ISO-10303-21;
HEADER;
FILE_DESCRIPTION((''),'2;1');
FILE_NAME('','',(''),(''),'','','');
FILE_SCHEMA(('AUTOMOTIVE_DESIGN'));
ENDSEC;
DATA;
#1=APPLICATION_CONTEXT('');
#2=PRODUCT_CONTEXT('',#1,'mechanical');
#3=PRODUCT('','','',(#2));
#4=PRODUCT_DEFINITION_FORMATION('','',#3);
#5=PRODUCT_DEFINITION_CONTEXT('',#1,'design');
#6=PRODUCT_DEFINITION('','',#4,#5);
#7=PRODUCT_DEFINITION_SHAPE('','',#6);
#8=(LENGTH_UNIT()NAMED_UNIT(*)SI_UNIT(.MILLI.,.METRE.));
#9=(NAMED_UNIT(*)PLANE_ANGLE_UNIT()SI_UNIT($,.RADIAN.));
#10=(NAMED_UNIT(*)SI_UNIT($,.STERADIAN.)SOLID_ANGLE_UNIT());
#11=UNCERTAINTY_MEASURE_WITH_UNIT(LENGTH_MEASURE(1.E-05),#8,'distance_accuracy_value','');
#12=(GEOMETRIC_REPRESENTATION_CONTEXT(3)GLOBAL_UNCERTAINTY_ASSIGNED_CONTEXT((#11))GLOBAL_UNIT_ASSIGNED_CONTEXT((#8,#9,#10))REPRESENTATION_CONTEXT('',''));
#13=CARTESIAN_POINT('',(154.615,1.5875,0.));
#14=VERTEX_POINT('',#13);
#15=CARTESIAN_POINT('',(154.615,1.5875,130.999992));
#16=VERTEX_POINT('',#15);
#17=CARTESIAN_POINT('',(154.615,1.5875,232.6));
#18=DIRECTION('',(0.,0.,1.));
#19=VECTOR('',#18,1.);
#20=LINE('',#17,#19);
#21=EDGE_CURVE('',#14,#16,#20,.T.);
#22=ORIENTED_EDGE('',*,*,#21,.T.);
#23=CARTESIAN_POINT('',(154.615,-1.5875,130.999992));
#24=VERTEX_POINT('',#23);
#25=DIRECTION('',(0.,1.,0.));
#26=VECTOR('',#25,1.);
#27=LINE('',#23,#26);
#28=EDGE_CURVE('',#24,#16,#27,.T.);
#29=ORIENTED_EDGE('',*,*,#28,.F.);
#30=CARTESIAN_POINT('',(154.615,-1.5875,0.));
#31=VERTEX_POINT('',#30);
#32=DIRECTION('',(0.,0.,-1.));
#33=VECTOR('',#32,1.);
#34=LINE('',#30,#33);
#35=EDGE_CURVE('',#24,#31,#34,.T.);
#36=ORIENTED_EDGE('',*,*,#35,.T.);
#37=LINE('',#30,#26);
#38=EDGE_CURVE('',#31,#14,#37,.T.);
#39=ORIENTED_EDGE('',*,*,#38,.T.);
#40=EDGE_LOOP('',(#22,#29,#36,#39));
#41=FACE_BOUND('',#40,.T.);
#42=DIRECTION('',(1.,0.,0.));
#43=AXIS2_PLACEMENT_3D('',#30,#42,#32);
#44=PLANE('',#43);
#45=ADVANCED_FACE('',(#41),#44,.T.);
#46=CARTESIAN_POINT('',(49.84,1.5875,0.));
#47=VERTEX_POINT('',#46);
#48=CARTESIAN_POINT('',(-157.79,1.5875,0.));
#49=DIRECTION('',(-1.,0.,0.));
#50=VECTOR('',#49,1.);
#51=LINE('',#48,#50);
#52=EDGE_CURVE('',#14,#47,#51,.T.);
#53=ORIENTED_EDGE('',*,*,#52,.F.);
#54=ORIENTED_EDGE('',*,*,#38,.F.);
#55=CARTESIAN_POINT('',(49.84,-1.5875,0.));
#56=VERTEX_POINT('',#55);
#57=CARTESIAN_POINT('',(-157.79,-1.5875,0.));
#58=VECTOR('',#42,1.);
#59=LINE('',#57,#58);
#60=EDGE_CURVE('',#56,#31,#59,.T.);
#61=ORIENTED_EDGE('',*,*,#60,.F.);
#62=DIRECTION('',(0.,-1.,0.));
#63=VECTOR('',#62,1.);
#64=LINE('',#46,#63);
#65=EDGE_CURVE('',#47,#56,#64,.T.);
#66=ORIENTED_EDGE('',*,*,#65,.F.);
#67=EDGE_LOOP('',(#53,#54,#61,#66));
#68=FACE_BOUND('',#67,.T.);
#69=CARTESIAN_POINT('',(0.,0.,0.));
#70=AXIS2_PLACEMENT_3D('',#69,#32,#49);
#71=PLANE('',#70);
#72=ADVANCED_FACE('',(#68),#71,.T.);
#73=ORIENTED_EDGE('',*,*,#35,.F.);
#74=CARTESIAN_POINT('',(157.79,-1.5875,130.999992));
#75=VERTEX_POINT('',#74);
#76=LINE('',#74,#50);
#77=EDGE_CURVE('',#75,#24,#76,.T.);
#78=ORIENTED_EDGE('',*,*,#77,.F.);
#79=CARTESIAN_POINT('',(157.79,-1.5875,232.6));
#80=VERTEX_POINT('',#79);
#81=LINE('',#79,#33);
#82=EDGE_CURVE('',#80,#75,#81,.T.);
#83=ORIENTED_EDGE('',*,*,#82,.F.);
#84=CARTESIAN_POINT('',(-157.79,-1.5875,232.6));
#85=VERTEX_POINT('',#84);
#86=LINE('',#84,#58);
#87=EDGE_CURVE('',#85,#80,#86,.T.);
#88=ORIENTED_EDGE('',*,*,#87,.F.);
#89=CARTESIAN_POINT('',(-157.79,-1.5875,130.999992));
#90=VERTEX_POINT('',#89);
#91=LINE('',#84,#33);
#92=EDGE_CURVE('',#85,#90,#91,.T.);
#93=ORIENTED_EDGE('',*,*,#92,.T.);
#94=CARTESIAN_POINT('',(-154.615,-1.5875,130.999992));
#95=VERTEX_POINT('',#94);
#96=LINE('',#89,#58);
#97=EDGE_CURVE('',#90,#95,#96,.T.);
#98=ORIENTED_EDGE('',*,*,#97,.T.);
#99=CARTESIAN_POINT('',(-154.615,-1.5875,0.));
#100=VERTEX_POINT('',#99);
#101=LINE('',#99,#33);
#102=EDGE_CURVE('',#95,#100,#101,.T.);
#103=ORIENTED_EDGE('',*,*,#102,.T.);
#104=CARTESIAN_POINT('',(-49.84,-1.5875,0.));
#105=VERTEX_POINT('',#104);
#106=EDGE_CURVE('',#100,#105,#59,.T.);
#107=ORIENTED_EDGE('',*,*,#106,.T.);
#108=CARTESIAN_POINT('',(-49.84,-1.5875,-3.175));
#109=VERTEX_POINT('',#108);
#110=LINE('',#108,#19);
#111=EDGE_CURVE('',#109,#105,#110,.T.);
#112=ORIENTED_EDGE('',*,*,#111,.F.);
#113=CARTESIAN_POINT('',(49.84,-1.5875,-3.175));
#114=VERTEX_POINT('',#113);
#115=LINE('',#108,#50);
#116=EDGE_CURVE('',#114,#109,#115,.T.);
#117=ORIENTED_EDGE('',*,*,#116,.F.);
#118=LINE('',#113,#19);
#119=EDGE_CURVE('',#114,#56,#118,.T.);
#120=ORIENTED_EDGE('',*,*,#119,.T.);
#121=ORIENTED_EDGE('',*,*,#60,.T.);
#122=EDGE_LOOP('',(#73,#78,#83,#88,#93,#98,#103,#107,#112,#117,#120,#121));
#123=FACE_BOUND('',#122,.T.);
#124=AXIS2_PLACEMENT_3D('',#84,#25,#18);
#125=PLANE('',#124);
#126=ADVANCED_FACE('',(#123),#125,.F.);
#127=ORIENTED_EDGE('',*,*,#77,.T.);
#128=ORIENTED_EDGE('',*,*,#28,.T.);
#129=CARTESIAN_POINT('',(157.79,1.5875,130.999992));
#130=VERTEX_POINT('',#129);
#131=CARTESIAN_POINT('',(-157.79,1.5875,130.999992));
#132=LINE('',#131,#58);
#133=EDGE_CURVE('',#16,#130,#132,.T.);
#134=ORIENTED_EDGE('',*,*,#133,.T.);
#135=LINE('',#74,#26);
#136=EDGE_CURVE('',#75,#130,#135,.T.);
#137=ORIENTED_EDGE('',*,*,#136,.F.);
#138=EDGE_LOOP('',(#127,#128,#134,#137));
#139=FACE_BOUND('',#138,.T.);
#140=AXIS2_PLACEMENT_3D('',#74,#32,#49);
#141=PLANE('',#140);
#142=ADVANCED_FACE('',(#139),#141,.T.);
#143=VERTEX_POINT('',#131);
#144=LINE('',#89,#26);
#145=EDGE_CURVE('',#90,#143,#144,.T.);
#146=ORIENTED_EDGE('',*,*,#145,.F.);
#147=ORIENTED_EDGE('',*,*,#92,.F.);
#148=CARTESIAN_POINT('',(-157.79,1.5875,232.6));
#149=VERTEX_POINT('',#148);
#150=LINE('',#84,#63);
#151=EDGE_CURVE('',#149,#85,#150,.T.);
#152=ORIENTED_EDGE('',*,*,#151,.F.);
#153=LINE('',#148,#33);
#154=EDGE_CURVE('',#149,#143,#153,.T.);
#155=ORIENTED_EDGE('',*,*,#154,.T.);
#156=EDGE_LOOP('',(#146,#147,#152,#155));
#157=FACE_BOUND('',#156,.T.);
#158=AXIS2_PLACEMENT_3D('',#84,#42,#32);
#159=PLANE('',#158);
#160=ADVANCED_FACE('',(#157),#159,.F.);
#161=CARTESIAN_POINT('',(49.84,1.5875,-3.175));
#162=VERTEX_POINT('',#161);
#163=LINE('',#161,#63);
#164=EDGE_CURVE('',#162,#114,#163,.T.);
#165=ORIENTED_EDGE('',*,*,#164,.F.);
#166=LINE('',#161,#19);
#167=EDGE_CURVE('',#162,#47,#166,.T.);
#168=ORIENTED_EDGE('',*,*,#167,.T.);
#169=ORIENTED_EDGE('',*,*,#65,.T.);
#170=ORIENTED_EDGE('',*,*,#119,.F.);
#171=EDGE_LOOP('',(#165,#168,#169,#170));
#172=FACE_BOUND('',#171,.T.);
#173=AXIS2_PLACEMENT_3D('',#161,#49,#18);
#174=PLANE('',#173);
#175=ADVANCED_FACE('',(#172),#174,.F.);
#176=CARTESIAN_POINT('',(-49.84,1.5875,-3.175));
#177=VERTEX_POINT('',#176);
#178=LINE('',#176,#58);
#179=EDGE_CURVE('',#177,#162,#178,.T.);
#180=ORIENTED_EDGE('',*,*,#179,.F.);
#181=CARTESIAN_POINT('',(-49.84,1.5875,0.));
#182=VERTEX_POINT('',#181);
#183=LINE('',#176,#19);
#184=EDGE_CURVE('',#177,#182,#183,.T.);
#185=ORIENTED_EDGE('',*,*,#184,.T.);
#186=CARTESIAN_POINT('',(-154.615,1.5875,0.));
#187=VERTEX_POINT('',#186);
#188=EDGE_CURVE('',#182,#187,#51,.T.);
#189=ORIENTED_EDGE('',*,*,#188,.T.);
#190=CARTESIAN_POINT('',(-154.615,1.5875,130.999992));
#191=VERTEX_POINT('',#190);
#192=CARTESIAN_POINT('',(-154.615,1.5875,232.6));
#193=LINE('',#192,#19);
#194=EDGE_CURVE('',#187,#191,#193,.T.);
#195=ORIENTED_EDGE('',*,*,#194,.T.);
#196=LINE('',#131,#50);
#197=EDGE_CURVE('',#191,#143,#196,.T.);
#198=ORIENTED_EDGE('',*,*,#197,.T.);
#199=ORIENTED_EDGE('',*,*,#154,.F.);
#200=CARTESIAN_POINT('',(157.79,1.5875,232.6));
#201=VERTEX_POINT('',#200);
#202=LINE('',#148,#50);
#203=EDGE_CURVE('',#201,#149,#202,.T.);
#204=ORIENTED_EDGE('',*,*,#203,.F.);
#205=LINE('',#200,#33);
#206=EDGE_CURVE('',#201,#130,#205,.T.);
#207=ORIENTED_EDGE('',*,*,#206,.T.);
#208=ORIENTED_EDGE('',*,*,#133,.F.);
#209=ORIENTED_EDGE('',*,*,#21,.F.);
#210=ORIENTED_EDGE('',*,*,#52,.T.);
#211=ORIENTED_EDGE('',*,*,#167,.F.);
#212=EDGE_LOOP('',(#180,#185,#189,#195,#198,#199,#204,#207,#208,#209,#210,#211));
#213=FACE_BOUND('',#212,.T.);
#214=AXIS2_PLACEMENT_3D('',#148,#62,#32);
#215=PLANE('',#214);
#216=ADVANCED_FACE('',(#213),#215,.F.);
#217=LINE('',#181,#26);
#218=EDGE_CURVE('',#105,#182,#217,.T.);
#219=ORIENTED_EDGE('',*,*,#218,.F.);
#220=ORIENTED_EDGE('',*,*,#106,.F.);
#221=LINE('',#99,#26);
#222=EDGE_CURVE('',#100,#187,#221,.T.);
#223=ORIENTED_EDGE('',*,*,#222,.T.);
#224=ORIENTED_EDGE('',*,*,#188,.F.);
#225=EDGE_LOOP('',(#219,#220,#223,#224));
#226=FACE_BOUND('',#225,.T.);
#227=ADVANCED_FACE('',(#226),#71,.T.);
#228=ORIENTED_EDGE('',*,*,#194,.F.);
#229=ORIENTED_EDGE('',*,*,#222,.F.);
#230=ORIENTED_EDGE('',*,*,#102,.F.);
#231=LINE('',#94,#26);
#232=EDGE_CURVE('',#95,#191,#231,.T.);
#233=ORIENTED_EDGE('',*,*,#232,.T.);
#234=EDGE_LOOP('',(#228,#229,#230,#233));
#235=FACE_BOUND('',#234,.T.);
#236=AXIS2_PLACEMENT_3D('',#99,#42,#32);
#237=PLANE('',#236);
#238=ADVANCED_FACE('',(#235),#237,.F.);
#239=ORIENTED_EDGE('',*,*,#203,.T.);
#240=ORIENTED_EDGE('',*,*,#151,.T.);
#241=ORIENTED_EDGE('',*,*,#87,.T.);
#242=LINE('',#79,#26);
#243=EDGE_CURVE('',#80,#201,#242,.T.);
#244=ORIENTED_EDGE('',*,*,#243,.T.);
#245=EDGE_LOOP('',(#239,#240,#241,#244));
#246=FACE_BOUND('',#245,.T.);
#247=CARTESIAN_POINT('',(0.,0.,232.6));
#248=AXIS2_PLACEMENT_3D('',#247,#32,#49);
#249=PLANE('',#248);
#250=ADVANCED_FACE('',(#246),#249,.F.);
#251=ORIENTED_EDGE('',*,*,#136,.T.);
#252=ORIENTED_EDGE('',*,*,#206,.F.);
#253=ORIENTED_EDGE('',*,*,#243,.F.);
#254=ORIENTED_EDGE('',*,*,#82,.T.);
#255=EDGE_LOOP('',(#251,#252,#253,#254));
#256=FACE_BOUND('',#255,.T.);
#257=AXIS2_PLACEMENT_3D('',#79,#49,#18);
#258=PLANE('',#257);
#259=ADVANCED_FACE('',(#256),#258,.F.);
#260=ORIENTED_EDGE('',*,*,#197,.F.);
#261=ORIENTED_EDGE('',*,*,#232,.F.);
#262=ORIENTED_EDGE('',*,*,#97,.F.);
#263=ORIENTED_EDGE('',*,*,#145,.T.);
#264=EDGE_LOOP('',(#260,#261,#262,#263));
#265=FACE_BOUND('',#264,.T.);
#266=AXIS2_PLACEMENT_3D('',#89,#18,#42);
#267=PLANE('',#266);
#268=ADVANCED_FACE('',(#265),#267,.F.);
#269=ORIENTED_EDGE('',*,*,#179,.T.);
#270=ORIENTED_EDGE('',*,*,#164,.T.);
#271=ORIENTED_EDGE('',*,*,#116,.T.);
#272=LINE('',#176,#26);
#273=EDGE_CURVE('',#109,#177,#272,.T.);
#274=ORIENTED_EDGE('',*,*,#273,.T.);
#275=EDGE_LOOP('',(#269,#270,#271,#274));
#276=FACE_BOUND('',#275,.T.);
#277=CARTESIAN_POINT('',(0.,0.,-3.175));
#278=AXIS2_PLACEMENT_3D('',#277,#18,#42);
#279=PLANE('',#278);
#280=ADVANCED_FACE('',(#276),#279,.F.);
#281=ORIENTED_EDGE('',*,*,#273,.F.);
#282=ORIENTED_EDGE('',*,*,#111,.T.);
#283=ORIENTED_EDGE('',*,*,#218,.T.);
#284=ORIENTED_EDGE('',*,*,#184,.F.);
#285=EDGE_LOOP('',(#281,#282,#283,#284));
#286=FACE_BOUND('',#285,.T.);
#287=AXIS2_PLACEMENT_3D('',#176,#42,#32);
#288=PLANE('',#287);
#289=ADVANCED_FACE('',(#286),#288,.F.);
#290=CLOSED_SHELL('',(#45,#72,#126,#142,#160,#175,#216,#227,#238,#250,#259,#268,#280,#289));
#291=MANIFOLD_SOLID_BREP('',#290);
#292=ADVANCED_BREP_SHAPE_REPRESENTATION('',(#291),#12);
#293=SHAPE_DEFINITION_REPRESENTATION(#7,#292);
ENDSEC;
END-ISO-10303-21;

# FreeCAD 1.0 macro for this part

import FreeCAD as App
import Part
import Sketcher
from FreeCAD import Vector
Q = App.Units.Quantity


def add_polygon(sketch, points):
    """Adds a closed chain of lines whose ends are joined by coincident constraints."""
    first, n = sketch.GeometryCount, len(points)
    for a, b in zip(points, points[1:] + points[:1]):
        sketch.addGeometry(Part.LineSegment(App.Vector(*a, 0), App.Vector(*b, 0)), False)
    for i in range(n):
        sketch.addConstraint(Sketcher.Constraint("Coincident", first + i, 2, first + (i + 1) % n, 1))

doc = App.newDocument("Part")
body = doc.addObject("PartDesign::Body", "Body")

# Sketch on XY plane
sketch1 = body.newObject("Sketcher::SketchObject", "Sketch")
sketch1.AttachmentSupport = (doc.getObject("XY_Plane"), [""])
sketch1.MapMode = "FlatFace"
add_polygon(sketch1, [(-157.8, 1.6), (-157.8, -1.6), (157.8, -1.6), (157.8, 1.6)])  # lines 0-3
sketch1.addConstraint(Sketcher.Constraint("Vertical", 0))
sketch1.addConstraint(Sketcher.Constraint("Horizontal", 1))
sketch1.addConstraint(Sketcher.Constraint("Vertical", 2))
sketch1.addConstraint(Sketcher.Constraint("Horizontal", 3))
sketch1.addConstraint(Sketcher.Constraint("Symmetric", 0, 2, 2, 2, -1, 1))
sketch1.addConstraint(Sketcher.Constraint("DistanceX", 1, 1, 1, 2, Q("315.58 mm")))
sketch1.addConstraint(Sketcher.Constraint("DistanceY", 0, 2, 0, 1, Q("3.175 mm")))
pad1 = body.newObject("PartDesign::Pad", "Pad")
pad1.Profile = sketch1
pad1.Length = 232.6

# Sketch on XZ plane
sketch2 = body.newObject("Sketcher::SketchObject", "Sketch001")
sketch2.AttachmentSupport = (doc.getObject("XZ_Plane"), [""])
sketch2.MapMode = "FlatFace"
sketch2.AttachmentOffset = App.Placement(Vector(0, 0, -1.5875), App.Rotation())
add_polygon(sketch2, [(-157.8, 0), (-157.8, 131), (-154.6, 131), (-154.6, 0)])  # lines 0-3
sketch2.addConstraint(Sketcher.Constraint("Vertical", 0))
sketch2.addConstraint(Sketcher.Constraint("Horizontal", 1))
sketch2.addConstraint(Sketcher.Constraint("Vertical", 2))
sketch2.addConstraint(Sketcher.Constraint("Horizontal", 3))
sketch2.addConstraint(Sketcher.Constraint("PointOnObject", 2, 2, -1))
sketch2.addConstraint(Sketcher.Constraint("DistanceX", 1, 1, 1, 2, Q("3.175 mm")))
sketch2.addConstraint(Sketcher.Constraint("DistanceX", 0, 2, -1, 1, Q("157.79 mm")))
sketch2.addConstraint(Sketcher.Constraint("DistanceY", 0, 1, 0, 2, Q("130.999992 mm")))
pocket1 = body.newObject("PartDesign::Pocket", "Pocket")
pocket1.Profile = sketch2
pocket1.Length = 564.176217
pocket1.Midplane = True
doc.recompute()

mirrored = body.newObject("PartDesign::Mirrored", "Mirrored")
mirrored.Originals = [pocket1]
mirrored.MirrorPlane = (doc.getObject("YZ_Plane"), [""])
body.Tip = mirrored

# Sketch on XY plane
sketch3 = body.newObject("Sketcher::SketchObject", "Sketch002")
sketch3.AttachmentSupport = (doc.getObject("XY_Plane"), [""])
sketch3.MapMode = "FlatFace"
add_polygon(sketch3, [(49.8, 1.6), (49.8, -1.6), (-49.8, -1.6), (-49.8, 1.6)])  # lines 0-3
sketch3.addConstraint(Sketcher.Constraint("Vertical", 0))
sketch3.addConstraint(Sketcher.Constraint("Horizontal", 1))
sketch3.addConstraint(Sketcher.Constraint("Vertical", 2))
sketch3.addConstraint(Sketcher.Constraint("Horizontal", 3))
sketch3.addConstraint(Sketcher.Constraint("Symmetric", 0, 2, 2, 2, -1, 1))
sketch3.addConstraint(Sketcher.Constraint("DistanceX", 1, 2, 1, 1, Q("99.68 mm")))
sketch3.addConstraint(Sketcher.Constraint("DistanceY", 0, 2, 0, 1, Q("3.175 mm")))
pad2 = body.newObject("PartDesign::Pad", "Pad001")
pad2.Profile = sketch3
pad2.Length = 3.175
pad2.Reversed = True

doc.recompute()
